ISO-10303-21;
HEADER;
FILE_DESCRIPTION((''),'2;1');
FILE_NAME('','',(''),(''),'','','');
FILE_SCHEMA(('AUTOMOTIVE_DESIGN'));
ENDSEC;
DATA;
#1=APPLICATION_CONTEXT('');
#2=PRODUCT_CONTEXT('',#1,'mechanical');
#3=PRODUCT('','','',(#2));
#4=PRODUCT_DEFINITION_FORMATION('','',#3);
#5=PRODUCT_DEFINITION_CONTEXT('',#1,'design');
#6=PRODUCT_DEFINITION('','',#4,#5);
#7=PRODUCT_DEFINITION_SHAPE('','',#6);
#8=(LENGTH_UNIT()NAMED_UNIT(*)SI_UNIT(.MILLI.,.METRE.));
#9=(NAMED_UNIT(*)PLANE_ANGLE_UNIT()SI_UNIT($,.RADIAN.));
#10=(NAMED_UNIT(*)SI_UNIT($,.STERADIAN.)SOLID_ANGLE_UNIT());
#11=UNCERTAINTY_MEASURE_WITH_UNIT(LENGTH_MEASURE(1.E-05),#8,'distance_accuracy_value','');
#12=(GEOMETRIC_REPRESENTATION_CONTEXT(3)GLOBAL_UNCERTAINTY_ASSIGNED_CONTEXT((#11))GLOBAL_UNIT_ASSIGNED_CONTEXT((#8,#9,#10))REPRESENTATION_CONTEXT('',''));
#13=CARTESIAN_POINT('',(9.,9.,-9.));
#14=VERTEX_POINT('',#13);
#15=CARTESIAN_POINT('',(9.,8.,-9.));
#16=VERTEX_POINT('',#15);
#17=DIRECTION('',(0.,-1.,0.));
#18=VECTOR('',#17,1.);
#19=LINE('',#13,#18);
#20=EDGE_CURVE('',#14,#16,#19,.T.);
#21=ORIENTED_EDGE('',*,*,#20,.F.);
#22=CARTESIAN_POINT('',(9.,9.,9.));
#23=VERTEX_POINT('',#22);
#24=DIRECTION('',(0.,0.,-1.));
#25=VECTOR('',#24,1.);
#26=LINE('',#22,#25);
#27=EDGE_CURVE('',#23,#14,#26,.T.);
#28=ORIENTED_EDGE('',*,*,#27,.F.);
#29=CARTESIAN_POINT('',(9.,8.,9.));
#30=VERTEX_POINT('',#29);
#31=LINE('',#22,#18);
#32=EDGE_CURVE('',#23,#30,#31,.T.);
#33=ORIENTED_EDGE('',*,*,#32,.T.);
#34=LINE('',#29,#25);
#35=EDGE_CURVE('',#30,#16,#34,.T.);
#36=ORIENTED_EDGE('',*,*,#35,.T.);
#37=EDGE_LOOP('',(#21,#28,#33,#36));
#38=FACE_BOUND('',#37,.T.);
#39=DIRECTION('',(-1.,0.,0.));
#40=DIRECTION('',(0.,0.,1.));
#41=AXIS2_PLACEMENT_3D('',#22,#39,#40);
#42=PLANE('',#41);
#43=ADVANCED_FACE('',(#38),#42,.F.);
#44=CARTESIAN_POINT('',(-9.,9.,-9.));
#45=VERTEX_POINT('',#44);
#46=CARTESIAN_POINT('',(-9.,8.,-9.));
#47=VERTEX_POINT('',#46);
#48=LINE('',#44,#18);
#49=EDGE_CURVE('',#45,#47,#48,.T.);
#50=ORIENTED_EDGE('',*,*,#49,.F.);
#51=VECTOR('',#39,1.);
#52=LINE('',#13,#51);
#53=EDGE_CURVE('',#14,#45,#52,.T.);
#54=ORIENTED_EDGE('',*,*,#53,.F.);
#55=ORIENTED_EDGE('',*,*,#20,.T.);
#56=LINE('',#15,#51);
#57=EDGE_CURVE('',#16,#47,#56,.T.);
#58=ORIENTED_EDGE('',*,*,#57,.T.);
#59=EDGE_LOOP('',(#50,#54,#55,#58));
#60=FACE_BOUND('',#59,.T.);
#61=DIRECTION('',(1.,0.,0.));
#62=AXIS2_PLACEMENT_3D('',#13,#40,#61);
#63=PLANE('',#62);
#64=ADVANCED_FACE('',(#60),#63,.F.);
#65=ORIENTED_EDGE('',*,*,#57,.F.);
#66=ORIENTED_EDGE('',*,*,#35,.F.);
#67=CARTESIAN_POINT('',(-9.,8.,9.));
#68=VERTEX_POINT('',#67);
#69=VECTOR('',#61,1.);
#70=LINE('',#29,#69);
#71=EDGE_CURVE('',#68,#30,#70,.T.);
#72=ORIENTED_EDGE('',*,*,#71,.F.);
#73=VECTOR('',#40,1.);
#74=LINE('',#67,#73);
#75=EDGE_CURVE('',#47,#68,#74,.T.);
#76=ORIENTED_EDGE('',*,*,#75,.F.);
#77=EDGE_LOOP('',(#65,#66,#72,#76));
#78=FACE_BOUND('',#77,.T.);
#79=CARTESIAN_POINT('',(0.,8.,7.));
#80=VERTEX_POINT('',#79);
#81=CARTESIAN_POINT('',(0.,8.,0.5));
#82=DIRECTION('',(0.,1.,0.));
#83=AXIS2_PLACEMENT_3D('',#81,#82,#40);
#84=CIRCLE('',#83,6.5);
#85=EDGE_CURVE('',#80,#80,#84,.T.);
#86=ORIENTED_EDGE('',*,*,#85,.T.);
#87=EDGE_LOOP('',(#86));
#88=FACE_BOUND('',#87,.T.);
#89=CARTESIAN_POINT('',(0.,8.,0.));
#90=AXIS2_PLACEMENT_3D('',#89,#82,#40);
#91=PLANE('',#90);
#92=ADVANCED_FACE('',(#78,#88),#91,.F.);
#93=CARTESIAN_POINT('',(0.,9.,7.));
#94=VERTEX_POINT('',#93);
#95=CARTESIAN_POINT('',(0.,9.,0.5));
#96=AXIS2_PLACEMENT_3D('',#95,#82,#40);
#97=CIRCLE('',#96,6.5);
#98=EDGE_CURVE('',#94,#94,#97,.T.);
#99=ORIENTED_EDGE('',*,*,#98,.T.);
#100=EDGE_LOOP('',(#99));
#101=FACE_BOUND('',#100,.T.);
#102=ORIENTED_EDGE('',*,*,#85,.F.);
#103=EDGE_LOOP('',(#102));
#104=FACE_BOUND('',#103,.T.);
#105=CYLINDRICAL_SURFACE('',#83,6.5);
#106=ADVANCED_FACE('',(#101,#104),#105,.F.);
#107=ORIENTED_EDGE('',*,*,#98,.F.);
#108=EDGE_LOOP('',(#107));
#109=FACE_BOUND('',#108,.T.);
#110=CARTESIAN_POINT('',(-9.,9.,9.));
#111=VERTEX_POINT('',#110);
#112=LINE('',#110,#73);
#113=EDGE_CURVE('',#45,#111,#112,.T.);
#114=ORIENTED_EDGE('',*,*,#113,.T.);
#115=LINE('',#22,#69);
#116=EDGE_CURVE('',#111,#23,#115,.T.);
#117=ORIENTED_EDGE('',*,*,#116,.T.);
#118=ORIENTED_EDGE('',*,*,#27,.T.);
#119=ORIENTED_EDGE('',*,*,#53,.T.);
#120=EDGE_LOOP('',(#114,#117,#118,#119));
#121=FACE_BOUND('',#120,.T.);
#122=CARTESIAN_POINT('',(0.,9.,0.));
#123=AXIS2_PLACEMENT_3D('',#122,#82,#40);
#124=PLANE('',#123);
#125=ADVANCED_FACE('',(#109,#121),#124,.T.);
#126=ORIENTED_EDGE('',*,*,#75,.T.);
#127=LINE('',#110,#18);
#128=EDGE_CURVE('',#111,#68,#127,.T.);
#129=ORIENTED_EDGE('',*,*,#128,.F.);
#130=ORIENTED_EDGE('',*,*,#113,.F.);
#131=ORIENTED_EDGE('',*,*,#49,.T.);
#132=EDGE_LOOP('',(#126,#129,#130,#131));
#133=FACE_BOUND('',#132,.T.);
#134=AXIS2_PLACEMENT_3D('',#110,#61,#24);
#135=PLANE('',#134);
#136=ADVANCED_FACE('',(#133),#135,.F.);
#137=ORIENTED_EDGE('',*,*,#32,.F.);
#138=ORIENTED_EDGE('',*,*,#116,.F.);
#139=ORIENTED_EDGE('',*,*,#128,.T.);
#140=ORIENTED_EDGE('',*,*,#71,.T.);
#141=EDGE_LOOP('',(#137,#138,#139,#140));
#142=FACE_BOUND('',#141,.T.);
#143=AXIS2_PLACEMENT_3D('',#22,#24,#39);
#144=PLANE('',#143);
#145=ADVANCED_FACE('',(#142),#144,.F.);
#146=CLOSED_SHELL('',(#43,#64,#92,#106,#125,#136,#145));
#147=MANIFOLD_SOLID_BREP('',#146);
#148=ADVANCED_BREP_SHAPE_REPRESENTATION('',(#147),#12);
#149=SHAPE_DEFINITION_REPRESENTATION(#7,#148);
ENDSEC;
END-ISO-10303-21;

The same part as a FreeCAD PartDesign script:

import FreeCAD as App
import Part
import Sketcher

V = App.Vector
Q = App.Units.Quantity


def add_polygon(sketch, points):
    """Adds a closed chain of lines whose ends are joined by coincident constraints."""
    first, n = sketch.GeometryCount, len(points)
    for a, b in zip(points, points[1:] + points[:1]):
        sketch.addGeometry(Part.LineSegment(App.Vector(*a, 0), App.Vector(*b, 0)), False)
    for i in range(n):
        sketch.addConstraint(Sketcher.Constraint("Coincident", first + i, 2, first + (i + 1) % n, 1))

doc = App.newDocument("Part")
body = doc.addObject("PartDesign::Body", "Body")

# Sketch on XZ plane
sketch1 = body.newObject("Sketcher::SketchObject", "Sketch")
sketch1.AttachmentSupport = (doc.getObject("XZ_Plane"), [""])
sketch1.MapMode = "FlatFace"
add_polygon(sketch1, [(-9, -9), (-9, 9), (9, 9), (9, -9)])  # lines 0-3
sketch1.addConstraint([
    Sketcher.Constraint("Vertical", 0),
    Sketcher.Constraint("Horizontal", 1),
    Sketcher.Constraint("Vertical", 2),
    Sketcher.Constraint("Horizontal", 3),
    Sketcher.Constraint("Symmetric", 0, 2, 2, 2, -1, 1),
    Sketcher.Constraint("Equal", 3, 0),
    Sketcher.Constraint("DistanceX", 1, 1, 1, 2, Q("18 mm")),
])
pad1 = body.newObject("PartDesign::Pad", "Pad")
pad1.Profile = sketch1
pad1.Length = 8
pad1.Reversed = True

# Sketch on XZ plane
sketch2 = body.newObject("Sketcher::SketchObject", "Sketch001")
sketch2.AttachmentSupport = (doc.getObject("XZ_Plane"), [""])
sketch2.MapMode = "FlatFace"
sketch2.AttachmentOffset = App.Placement(V(0, 0, -8), App.Rotation())
add_polygon(sketch2, [(-8, -9), (-8, 8), (8, 8), (8, -9)])  # lines 0-3
sketch2.addConstraint([
    Sketcher.Constraint("Vertical", 0),
    Sketcher.Constraint("Horizontal", 1),
    Sketcher.Constraint("Vertical", 2),
    Sketcher.Constraint("Horizontal", 3),
    Sketcher.Constraint("DistanceX", 1, 1, 1, 2, Q("16 mm")),
    Sketcher.Constraint("DistanceY", 0, 1, 0, 2, Q("17 mm")),
    Sketcher.Constraint("DistanceX", 0, 2, -1, 1, Q("8 mm")),
    Sketcher.Constraint("DistanceY", -1, 1, 0, 2, Q("8 mm")),
])
pocket1 = body.newObject("PartDesign::Pocket", "Pocket")
pocket1.Profile = sketch2
pocket1.Length = 7
pocket1.Reversed = True

# Sketch on XZ plane
sketch3 = body.newObject("Sketcher::SketchObject", "Sketch002")
sketch3.AttachmentSupport = (doc.getObject("XZ_Plane"), [""])
sketch3.MapMode = "FlatFace"
add_polygon(sketch3, [(-9, 9), (-9, -9), (9, -9), (9, 9)])  # lines 0-3
sketch3.addConstraint([
    Sketcher.Constraint("Vertical", 0),
    Sketcher.Constraint("Horizontal", 1),
    Sketcher.Constraint("Vertical", 2),
    Sketcher.Constraint("Horizontal", 3),
    Sketcher.Constraint("Symmetric", 0, 2, 2, 2, -1, 1),
    Sketcher.Constraint("Equal", 3, 0),
    Sketcher.Constraint("DistanceX", 1, 1, 1, 2, Q("18 mm")),
])
pocket2 = body.newObject("PartDesign::Pocket", "Pocket001")
pocket2.Profile = sketch3
pocket2.Length = 8
body2 = doc.addObject("PartDesign::Body", "Body001")

# Sketch on XZ plane
sketch4 = body2.newObject("Sketcher::SketchObject", "Sketch003")
sketch4.AttachmentSupport = (doc.getObject("XZ_Plane001"), [""])
sketch4.MapMode = "FlatFace"
sketch4.AttachmentOffset = App.Placement(V(0, 0, -8), App.Rotation())
add_polygon(sketch4, [(-9, -9), (-9, 9), (9, 9), (9, -9)])  # lines 0-3
sketch4.addConstraint([
    Sketcher.Constraint("Vertical", 0),
    Sketcher.Constraint("Horizontal", 1),
    Sketcher.Constraint("Vertical", 2),
    Sketcher.Constraint("Horizontal", 3),
    Sketcher.Constraint("Symmetric", 0, 2, 2, 2, -1, 1),
    Sketcher.Constraint("Equal", 3, 0),
    Sketcher.Constraint("DistanceX", 1, 1, 1, 2, Q("18 mm")),
])
pad2 = body2.newObject("PartDesign::Pad", "Pad001")
pad2.Profile = sketch4
pad2.Length = 1
pad2.Reversed = True

# Sketch on XZ plane
sketch5 = body2.newObject("Sketcher::SketchObject", "Sketch004")
sketch5.AttachmentSupport = (doc.getObject("XZ_Plane001"), [""])
sketch5.MapMode = "FlatFace"
sketch5.AttachmentOffset = App.Placement(V(0, 0, -9), App.Rotation())
sketch5.addGeometry(Part.Circle(V(0, 0, 0), V(0, 0, 1), 6), False)
sketch5.addConstraint([
    Sketcher.Constraint("PointOnObject", 0, 3, -2),
    Sketcher.Constraint("Diameter", 0, Q("13 mm")),
    Sketcher.Constraint("DistanceY", -1, 1, 0, 3, Q("0.5 mm")),
])
pocket3 = body2.newObject("PartDesign::Pocket", "Pocket002")
pocket3.Profile = sketch5
pocket3.Length = 1
pocket3.Reversed = True

doc.recompute()
